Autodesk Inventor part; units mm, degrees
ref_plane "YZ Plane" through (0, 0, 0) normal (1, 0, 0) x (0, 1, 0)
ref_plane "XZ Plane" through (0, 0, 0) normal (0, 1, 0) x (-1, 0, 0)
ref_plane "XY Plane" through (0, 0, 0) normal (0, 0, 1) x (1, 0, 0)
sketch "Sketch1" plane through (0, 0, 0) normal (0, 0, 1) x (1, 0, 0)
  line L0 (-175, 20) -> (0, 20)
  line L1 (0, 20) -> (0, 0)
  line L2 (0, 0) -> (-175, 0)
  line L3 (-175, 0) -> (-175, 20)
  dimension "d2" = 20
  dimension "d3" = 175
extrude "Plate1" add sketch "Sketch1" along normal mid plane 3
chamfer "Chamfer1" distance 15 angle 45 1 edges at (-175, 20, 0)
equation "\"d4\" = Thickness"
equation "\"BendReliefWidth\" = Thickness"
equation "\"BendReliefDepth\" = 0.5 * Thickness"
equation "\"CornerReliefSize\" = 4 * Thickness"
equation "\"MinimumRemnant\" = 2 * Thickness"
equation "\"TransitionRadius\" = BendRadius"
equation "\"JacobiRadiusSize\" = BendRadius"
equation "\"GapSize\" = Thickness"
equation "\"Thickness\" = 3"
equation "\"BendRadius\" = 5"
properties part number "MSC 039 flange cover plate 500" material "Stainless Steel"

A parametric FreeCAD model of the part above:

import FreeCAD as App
import Part
import Sketcher

V = App.Vector
Q = App.Units.Quantity


def edges_at(feature, points):
    """Names of the edges that pass closest to the given points."""
    edges = feature.Shape.Edges
    near = lambda p: min(range(len(edges)), key=lambda i: edges[i].distToShape(Part.Vertex(*p))[0])
    return sorted({f"Edge{near(p) + 1}" for p in points})


def add_polygon(sketch, points):
    """Adds a closed chain of lines whose ends are joined by coincident constraints."""
    first, n = sketch.GeometryCount, len(points)
    for a, b in zip(points, points[1:] + points[:1]):
        sketch.addGeometry(Part.LineSegment(App.Vector(*a, 0), App.Vector(*b, 0)), False)
    for i in range(n):
        sketch.addConstraint(Sketcher.Constraint("Coincident", first + i, 2, first + (i + 1) % n, 1))

doc = App.newDocument("Part")
body = doc.addObject("PartDesign::Body", "Body")

# Sketch on XY plane
sketch1 = body.newObject("Sketcher::SketchObject", "Sketch")
sketch1.AttachmentSupport = (doc.getObject("XY_Plane"), [""])
sketch1.MapMode = "FlatFace"
add_polygon(sketch1, [(0, 20), (-175, 20), (-175, 0), (0, 0)])  # lines 0-3
sketch1.addConstraint([
    Sketcher.Constraint("Horizontal", 0),
    Sketcher.Constraint("Vertical", 1),
    Sketcher.Constraint("Horizontal", 2),
    Sketcher.Constraint("Vertical", 3),
    Sketcher.Constraint("Coincident", 2, 2, -1, 1),
    Sketcher.Constraint("DistanceX", 0, 2, 0, 1, Q("175 mm")),
    Sketcher.Constraint("DistanceY", 1, 2, 1, 1, Q("20 mm")),
])
pad1 = body.newObject("PartDesign::Pad", "Pad")
pad1.Profile = sketch1
pad1.Length = 3
pad1.Midplane = True
doc.recompute()

chamfer = body.newObject("PartDesign::Chamfer", "Chamfer")
chamfer.Base = (pad1, edges_at(pad1, [(-175, 20, 0)]))
chamfer.Size = 15

doc.recompute()
